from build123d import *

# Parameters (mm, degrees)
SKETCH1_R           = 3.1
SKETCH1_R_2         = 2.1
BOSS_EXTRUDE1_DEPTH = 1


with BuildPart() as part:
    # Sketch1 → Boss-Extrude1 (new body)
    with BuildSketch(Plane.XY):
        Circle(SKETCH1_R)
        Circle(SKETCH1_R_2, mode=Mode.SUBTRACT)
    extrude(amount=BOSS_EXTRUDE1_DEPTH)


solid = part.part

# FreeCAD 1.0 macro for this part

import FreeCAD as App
import Part
import Sketcher
from FreeCAD import Vector
Q = App.Units.Quantity

doc = App.newDocument("Part")
body = doc.addObject("PartDesign::Body", "Body")

# Sketch on XY plane
sketch1 = doc.addObject("Sketcher::SketchObject", "Sketch")
body.addObject(sketch1)
sketch1.AttachmentSupport = (doc.XY_Plane, [""])
sketch1.MapMode = "FlatFace"
sketch1.addGeometry([
    Part.Circle(Vector(0, 0, 0), Vector(0, 0, 1), 3.1),
    Part.Circle(Vector(0, 0, 0), Vector(0, 0, 1), 2.1),
], False)
sketch1.addConstraint([
    Sketcher.Constraint("Coincident", 0, 3, -1, 1),
    Sketcher.Constraint("Coincident", 1, 3, -1, 1),
    Sketcher.Constraint("Diameter", 0, Q("6.2 mm")),
    Sketcher.Constraint("Diameter", 1, Q("4.2 mm")),
])
pad1 = doc.addObject("PartDesign::Pad", "Pad")
body.addObject(pad1)
pad1.Profile = sketch1
pad1.Length = 1

doc.recompute()
